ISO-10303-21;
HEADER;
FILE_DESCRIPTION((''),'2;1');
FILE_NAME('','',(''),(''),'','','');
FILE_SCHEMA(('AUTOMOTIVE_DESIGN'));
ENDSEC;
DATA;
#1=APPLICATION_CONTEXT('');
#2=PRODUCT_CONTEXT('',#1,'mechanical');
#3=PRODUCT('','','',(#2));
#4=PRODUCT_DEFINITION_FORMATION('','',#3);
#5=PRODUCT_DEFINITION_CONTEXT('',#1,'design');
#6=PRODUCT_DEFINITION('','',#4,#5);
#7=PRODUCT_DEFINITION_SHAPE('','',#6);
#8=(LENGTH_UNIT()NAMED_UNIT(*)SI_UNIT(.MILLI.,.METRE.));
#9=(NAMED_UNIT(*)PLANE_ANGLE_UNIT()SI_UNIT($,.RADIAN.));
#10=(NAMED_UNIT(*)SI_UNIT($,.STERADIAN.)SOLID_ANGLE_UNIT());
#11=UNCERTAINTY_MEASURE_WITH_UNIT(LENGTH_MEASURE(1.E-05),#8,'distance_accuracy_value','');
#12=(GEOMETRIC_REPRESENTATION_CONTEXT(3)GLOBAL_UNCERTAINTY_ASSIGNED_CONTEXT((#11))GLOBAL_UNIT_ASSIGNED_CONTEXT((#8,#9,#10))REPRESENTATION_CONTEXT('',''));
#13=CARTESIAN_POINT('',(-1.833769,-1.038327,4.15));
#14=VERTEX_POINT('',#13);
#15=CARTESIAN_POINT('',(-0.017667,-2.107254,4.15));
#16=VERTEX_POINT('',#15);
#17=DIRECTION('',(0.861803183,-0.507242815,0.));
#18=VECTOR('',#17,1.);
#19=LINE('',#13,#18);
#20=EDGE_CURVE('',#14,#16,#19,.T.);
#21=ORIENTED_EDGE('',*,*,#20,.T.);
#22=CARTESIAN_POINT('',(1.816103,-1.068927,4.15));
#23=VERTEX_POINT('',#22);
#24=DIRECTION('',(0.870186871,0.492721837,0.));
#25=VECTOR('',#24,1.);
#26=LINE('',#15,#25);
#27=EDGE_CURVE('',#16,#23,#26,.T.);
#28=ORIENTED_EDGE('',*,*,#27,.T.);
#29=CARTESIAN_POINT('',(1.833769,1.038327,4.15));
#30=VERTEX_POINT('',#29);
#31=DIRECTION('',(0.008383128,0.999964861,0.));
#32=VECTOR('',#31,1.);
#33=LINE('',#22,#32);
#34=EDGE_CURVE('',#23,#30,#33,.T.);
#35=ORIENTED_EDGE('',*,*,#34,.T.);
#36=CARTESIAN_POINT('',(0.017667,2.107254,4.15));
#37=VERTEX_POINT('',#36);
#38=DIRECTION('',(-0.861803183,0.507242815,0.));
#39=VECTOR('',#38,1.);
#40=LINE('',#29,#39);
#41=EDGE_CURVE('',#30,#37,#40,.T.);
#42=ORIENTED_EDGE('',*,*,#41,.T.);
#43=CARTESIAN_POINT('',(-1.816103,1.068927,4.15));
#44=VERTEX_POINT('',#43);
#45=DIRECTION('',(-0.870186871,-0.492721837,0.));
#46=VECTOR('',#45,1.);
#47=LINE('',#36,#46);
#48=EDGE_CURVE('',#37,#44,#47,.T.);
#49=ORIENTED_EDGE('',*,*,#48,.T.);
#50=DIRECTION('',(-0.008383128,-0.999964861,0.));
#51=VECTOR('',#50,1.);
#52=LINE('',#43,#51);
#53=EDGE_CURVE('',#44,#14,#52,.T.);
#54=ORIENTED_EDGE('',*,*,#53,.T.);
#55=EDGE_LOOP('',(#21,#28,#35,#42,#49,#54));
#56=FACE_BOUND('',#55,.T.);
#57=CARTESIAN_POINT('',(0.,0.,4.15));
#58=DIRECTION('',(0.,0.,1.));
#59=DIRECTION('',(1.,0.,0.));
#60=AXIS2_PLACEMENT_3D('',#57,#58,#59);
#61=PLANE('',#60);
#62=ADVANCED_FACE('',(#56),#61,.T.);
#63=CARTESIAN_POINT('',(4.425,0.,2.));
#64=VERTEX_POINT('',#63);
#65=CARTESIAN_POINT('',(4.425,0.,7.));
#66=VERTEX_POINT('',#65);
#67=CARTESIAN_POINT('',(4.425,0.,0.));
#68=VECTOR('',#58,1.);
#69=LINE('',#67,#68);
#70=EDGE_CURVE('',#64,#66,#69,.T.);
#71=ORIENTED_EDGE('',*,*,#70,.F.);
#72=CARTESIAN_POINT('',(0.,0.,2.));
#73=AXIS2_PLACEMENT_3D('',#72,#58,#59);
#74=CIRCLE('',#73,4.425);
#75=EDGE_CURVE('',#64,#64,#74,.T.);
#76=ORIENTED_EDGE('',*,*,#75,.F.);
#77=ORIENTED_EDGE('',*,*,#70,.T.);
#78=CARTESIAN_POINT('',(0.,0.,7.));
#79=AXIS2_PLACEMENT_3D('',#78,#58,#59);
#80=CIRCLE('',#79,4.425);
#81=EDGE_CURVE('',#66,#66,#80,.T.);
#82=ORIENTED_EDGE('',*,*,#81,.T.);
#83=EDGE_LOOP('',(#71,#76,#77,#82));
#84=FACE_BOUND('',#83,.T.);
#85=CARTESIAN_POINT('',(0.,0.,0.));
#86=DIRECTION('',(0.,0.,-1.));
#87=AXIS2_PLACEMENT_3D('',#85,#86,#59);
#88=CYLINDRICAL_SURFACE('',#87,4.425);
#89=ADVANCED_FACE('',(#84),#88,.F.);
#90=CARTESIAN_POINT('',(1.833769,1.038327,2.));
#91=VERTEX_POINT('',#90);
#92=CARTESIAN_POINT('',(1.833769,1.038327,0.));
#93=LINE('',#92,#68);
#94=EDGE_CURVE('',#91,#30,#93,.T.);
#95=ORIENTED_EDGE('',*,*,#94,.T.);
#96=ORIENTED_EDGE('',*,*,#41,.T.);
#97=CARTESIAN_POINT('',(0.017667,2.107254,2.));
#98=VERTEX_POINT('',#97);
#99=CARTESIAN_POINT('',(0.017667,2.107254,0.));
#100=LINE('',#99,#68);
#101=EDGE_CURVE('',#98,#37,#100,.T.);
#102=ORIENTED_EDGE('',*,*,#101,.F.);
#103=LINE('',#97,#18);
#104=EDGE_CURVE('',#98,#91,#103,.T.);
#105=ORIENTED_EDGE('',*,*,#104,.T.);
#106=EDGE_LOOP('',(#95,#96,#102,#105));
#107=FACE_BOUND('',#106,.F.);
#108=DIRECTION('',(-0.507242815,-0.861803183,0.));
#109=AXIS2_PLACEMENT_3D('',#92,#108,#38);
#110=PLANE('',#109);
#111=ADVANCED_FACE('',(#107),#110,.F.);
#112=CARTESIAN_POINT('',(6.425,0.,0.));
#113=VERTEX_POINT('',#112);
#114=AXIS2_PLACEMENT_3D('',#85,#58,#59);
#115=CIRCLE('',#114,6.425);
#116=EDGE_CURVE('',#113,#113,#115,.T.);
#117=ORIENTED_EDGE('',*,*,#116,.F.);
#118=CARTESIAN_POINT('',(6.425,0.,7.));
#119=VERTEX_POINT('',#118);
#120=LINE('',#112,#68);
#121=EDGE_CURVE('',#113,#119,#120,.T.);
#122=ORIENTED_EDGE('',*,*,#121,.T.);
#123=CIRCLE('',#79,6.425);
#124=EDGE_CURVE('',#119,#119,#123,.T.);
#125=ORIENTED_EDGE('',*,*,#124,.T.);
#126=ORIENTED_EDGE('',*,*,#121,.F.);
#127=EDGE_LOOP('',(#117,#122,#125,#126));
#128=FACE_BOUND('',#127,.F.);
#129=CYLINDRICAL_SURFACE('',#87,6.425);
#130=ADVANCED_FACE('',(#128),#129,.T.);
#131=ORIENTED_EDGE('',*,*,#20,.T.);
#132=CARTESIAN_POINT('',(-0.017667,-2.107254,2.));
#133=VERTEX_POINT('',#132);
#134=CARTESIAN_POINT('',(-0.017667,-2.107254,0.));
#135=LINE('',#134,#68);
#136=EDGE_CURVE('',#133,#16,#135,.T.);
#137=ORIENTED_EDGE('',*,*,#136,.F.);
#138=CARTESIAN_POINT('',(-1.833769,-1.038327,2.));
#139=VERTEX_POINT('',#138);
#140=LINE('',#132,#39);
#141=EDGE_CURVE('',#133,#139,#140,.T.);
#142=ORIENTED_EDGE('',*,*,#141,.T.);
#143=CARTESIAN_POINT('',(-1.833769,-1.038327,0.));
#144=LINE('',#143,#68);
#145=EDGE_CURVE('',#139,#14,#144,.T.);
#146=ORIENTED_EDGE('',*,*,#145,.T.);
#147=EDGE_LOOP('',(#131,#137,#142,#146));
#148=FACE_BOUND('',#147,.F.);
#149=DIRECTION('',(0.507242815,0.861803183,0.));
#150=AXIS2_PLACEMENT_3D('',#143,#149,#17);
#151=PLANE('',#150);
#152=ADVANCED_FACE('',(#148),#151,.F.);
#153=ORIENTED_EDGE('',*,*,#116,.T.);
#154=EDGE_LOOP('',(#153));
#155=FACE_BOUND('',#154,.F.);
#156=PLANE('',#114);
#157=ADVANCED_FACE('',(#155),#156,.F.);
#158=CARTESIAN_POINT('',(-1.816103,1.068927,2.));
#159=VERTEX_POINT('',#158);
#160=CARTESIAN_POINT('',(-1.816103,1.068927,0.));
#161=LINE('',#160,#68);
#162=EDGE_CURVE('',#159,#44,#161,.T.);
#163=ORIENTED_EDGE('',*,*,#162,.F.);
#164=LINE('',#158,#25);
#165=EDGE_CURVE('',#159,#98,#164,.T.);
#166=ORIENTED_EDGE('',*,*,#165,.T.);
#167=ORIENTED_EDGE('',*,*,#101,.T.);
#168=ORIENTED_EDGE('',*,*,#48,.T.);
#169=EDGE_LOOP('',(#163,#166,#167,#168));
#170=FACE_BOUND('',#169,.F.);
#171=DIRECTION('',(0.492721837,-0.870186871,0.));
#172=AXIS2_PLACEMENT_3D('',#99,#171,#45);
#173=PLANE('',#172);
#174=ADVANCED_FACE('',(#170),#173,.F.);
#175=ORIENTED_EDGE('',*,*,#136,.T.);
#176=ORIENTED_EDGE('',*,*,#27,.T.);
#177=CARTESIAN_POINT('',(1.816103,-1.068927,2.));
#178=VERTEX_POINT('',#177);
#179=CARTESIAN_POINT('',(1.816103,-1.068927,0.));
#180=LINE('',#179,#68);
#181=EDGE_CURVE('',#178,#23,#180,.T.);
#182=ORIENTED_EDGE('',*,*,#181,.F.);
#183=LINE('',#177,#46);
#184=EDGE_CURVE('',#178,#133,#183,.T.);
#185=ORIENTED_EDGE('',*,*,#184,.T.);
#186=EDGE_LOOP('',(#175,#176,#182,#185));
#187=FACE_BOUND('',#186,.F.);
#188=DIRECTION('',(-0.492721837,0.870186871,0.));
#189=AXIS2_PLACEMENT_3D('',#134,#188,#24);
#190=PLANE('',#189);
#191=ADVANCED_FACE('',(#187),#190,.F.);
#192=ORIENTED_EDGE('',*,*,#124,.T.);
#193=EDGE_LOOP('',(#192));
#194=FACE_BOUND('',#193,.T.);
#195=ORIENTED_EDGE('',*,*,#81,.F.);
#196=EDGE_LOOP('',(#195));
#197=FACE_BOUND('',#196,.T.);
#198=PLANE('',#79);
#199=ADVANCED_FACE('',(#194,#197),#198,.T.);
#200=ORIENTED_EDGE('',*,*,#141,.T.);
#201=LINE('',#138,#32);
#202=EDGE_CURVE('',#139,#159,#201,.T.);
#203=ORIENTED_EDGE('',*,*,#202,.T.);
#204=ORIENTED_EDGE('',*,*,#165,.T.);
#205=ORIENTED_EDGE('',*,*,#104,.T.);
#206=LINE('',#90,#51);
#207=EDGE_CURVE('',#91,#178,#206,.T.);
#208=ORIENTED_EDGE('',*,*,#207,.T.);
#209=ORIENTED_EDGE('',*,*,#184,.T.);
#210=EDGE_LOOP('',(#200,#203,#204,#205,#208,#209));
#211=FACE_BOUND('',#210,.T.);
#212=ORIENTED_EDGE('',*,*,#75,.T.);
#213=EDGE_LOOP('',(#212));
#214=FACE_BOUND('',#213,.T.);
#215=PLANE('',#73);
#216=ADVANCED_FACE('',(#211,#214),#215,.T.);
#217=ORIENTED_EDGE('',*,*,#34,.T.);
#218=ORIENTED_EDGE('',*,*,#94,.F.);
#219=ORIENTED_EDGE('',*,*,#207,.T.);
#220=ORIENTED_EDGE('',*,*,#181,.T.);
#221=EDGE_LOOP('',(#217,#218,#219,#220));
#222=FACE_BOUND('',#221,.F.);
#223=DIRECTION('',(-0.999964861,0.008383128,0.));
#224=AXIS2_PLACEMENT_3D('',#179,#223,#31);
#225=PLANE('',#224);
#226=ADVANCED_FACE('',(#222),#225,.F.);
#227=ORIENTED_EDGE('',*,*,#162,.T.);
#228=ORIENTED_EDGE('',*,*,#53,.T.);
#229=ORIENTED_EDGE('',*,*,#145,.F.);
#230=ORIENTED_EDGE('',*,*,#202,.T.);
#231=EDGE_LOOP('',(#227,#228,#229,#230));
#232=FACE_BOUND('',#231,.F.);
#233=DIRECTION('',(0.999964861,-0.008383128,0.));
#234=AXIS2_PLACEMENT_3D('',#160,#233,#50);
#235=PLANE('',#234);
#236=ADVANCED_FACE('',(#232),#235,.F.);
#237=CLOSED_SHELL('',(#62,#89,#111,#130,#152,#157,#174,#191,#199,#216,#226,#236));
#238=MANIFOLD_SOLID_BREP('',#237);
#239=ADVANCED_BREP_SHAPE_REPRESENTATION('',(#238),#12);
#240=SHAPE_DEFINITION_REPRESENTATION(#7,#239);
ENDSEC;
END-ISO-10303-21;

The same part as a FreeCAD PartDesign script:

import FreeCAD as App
import Part
import Sketcher

V = App.Vector


def add_polygon(sketch, points):
    """Adds a closed chain of lines whose ends are joined by coincident constraints."""
    first, n = sketch.GeometryCount, len(points)
    for a, b in zip(points, points[1:] + points[:1]):
        sketch.addGeometry(Part.LineSegment(App.Vector(*a, 0), App.Vector(*b, 0)), False)
    for i in range(n):
        sketch.addConstraint(Sketcher.Constraint("Coincident", first + i, 2, first + (i + 1) % n, 1))

doc = App.newDocument("Part")
body = doc.addObject("PartDesign::Body", "Body")

# Sketch on XY plane
sketch1 = doc.addObject("Sketcher::SketchObject", "Sketch")
body.addObject(sketch1)
sketch1.AttachmentSupport = (doc.XY_Plane, [""])
sketch1.MapMode = "FlatFace"
sketch1.addGeometry(Part.Circle(V(0, 0, 0), V(0, 0, 1), 4.4), False)  # 0
add_polygon(sketch1, [(1.8, 1), (1.8, -1.1), (0, -2.1), (-1.8, -1), (-1.8, 1.1), (0, 2.1)])  # lines 1-6
sketch1.addConstraint([
    Sketcher.Constraint("Coincident", 0, 3, -1, 1),
    Sketcher.Constraint("Symmetric", 1, 2, 4, 2, -1, 1),
    Sketcher.Constraint("Symmetric", 2, 2, 5, 2, -1, 1),
    Sketcher.Constraint("Symmetric", 3, 2, 6, 2, -1, 1),
    Sketcher.Constraint("Equal", 1, 2),
    Sketcher.Constraint("Equal", 2, 3),
    Sketcher.Constraint("Diameter", 0, 8.85),
    Sketcher.Constraint("DistanceX", 3, 2, 2, 2, 1.816102),
    Sketcher.Constraint("DistanceY", 1, 2, 3, 2, 0.0306),
    Sketcher.Constraint("Distance", 1, 2.107328),
    Sketcher.Constraint("DistanceX", 3, 2, -1, 1, 1.833769),
])
pad1 = doc.addObject("PartDesign::Pad", "Pad")
body.addObject(pad1)
pad1.Profile = sketch1
pad1.Length = 2

# Sketch on XY plane
sketch2 = doc.addObject("Sketcher::SketchObject", "Sketch001")
body.addObject(sketch2)
sketch2.AttachmentSupport = (doc.XY_Plane, [""])
sketch2.MapMode = "FlatFace"
sketch2.addGeometry([
    Part.Circle(V(0, 0, 0), V(0, 0, 1), 6.4),
    Part.Circle(V(0, 0, 0), V(0, 0, 1), 4.4),
], False)
sketch2.addConstraint([
    Sketcher.Constraint("Coincident", 0, 3, -1, 1),
    Sketcher.Constraint("Coincident", 1, 3, -1, 1),
    Sketcher.Constraint("Diameter", 0, 12.85),
    Sketcher.Constraint("Diameter", 1, 8.85),
])
pad2 = doc.addObject("PartDesign::Pad", "Pad001")
body.addObject(pad2)
pad2.Profile = sketch2
pad2.Length = 7

# Sketch on XY plane
sketch3 = doc.addObject("Sketcher::SketchObject", "Sketch002")
body.addObject(sketch3)
sketch3.AttachmentSupport = (doc.XY_Plane, [""])
sketch3.MapMode = "FlatFace"
add_polygon(sketch3, [(-1.8, -1), (0, -2.1), (1.8, -1.1), (1.8, 1), (0, 2.1), (-1.8, 1.1)])  # lines 0-5
sketch3.addConstraint([
    Sketcher.Constraint("Symmetric", 0, 2, 3, 2, -1, 1),
    Sketcher.Constraint("Symmetric", 1, 2, 4, 2, -1, 1),
    Sketcher.Constraint("Symmetric", 2, 2, 5, 2, -1, 1),
    Sketcher.Constraint("Equal", 0, 1),
    Sketcher.Constraint("Equal", 1, 2),
    Sketcher.Constraint("DistanceX", 3, 2, 2, 2, 1.816102),
    Sketcher.Constraint("DistanceY", 2, 2, 4, 2, 0.0306),
    Sketcher.Constraint("Distance", 0, 2.107328),
    Sketcher.Constraint("DistanceX", -1, 1, 2, 2, 1.833769),
])
pad3 = doc.addObject("PartDesign::Pad", "Pad002")
body.addObject(pad3)
pad3.Profile = sketch3
pad3.Length = 4.15

doc.recompute()
